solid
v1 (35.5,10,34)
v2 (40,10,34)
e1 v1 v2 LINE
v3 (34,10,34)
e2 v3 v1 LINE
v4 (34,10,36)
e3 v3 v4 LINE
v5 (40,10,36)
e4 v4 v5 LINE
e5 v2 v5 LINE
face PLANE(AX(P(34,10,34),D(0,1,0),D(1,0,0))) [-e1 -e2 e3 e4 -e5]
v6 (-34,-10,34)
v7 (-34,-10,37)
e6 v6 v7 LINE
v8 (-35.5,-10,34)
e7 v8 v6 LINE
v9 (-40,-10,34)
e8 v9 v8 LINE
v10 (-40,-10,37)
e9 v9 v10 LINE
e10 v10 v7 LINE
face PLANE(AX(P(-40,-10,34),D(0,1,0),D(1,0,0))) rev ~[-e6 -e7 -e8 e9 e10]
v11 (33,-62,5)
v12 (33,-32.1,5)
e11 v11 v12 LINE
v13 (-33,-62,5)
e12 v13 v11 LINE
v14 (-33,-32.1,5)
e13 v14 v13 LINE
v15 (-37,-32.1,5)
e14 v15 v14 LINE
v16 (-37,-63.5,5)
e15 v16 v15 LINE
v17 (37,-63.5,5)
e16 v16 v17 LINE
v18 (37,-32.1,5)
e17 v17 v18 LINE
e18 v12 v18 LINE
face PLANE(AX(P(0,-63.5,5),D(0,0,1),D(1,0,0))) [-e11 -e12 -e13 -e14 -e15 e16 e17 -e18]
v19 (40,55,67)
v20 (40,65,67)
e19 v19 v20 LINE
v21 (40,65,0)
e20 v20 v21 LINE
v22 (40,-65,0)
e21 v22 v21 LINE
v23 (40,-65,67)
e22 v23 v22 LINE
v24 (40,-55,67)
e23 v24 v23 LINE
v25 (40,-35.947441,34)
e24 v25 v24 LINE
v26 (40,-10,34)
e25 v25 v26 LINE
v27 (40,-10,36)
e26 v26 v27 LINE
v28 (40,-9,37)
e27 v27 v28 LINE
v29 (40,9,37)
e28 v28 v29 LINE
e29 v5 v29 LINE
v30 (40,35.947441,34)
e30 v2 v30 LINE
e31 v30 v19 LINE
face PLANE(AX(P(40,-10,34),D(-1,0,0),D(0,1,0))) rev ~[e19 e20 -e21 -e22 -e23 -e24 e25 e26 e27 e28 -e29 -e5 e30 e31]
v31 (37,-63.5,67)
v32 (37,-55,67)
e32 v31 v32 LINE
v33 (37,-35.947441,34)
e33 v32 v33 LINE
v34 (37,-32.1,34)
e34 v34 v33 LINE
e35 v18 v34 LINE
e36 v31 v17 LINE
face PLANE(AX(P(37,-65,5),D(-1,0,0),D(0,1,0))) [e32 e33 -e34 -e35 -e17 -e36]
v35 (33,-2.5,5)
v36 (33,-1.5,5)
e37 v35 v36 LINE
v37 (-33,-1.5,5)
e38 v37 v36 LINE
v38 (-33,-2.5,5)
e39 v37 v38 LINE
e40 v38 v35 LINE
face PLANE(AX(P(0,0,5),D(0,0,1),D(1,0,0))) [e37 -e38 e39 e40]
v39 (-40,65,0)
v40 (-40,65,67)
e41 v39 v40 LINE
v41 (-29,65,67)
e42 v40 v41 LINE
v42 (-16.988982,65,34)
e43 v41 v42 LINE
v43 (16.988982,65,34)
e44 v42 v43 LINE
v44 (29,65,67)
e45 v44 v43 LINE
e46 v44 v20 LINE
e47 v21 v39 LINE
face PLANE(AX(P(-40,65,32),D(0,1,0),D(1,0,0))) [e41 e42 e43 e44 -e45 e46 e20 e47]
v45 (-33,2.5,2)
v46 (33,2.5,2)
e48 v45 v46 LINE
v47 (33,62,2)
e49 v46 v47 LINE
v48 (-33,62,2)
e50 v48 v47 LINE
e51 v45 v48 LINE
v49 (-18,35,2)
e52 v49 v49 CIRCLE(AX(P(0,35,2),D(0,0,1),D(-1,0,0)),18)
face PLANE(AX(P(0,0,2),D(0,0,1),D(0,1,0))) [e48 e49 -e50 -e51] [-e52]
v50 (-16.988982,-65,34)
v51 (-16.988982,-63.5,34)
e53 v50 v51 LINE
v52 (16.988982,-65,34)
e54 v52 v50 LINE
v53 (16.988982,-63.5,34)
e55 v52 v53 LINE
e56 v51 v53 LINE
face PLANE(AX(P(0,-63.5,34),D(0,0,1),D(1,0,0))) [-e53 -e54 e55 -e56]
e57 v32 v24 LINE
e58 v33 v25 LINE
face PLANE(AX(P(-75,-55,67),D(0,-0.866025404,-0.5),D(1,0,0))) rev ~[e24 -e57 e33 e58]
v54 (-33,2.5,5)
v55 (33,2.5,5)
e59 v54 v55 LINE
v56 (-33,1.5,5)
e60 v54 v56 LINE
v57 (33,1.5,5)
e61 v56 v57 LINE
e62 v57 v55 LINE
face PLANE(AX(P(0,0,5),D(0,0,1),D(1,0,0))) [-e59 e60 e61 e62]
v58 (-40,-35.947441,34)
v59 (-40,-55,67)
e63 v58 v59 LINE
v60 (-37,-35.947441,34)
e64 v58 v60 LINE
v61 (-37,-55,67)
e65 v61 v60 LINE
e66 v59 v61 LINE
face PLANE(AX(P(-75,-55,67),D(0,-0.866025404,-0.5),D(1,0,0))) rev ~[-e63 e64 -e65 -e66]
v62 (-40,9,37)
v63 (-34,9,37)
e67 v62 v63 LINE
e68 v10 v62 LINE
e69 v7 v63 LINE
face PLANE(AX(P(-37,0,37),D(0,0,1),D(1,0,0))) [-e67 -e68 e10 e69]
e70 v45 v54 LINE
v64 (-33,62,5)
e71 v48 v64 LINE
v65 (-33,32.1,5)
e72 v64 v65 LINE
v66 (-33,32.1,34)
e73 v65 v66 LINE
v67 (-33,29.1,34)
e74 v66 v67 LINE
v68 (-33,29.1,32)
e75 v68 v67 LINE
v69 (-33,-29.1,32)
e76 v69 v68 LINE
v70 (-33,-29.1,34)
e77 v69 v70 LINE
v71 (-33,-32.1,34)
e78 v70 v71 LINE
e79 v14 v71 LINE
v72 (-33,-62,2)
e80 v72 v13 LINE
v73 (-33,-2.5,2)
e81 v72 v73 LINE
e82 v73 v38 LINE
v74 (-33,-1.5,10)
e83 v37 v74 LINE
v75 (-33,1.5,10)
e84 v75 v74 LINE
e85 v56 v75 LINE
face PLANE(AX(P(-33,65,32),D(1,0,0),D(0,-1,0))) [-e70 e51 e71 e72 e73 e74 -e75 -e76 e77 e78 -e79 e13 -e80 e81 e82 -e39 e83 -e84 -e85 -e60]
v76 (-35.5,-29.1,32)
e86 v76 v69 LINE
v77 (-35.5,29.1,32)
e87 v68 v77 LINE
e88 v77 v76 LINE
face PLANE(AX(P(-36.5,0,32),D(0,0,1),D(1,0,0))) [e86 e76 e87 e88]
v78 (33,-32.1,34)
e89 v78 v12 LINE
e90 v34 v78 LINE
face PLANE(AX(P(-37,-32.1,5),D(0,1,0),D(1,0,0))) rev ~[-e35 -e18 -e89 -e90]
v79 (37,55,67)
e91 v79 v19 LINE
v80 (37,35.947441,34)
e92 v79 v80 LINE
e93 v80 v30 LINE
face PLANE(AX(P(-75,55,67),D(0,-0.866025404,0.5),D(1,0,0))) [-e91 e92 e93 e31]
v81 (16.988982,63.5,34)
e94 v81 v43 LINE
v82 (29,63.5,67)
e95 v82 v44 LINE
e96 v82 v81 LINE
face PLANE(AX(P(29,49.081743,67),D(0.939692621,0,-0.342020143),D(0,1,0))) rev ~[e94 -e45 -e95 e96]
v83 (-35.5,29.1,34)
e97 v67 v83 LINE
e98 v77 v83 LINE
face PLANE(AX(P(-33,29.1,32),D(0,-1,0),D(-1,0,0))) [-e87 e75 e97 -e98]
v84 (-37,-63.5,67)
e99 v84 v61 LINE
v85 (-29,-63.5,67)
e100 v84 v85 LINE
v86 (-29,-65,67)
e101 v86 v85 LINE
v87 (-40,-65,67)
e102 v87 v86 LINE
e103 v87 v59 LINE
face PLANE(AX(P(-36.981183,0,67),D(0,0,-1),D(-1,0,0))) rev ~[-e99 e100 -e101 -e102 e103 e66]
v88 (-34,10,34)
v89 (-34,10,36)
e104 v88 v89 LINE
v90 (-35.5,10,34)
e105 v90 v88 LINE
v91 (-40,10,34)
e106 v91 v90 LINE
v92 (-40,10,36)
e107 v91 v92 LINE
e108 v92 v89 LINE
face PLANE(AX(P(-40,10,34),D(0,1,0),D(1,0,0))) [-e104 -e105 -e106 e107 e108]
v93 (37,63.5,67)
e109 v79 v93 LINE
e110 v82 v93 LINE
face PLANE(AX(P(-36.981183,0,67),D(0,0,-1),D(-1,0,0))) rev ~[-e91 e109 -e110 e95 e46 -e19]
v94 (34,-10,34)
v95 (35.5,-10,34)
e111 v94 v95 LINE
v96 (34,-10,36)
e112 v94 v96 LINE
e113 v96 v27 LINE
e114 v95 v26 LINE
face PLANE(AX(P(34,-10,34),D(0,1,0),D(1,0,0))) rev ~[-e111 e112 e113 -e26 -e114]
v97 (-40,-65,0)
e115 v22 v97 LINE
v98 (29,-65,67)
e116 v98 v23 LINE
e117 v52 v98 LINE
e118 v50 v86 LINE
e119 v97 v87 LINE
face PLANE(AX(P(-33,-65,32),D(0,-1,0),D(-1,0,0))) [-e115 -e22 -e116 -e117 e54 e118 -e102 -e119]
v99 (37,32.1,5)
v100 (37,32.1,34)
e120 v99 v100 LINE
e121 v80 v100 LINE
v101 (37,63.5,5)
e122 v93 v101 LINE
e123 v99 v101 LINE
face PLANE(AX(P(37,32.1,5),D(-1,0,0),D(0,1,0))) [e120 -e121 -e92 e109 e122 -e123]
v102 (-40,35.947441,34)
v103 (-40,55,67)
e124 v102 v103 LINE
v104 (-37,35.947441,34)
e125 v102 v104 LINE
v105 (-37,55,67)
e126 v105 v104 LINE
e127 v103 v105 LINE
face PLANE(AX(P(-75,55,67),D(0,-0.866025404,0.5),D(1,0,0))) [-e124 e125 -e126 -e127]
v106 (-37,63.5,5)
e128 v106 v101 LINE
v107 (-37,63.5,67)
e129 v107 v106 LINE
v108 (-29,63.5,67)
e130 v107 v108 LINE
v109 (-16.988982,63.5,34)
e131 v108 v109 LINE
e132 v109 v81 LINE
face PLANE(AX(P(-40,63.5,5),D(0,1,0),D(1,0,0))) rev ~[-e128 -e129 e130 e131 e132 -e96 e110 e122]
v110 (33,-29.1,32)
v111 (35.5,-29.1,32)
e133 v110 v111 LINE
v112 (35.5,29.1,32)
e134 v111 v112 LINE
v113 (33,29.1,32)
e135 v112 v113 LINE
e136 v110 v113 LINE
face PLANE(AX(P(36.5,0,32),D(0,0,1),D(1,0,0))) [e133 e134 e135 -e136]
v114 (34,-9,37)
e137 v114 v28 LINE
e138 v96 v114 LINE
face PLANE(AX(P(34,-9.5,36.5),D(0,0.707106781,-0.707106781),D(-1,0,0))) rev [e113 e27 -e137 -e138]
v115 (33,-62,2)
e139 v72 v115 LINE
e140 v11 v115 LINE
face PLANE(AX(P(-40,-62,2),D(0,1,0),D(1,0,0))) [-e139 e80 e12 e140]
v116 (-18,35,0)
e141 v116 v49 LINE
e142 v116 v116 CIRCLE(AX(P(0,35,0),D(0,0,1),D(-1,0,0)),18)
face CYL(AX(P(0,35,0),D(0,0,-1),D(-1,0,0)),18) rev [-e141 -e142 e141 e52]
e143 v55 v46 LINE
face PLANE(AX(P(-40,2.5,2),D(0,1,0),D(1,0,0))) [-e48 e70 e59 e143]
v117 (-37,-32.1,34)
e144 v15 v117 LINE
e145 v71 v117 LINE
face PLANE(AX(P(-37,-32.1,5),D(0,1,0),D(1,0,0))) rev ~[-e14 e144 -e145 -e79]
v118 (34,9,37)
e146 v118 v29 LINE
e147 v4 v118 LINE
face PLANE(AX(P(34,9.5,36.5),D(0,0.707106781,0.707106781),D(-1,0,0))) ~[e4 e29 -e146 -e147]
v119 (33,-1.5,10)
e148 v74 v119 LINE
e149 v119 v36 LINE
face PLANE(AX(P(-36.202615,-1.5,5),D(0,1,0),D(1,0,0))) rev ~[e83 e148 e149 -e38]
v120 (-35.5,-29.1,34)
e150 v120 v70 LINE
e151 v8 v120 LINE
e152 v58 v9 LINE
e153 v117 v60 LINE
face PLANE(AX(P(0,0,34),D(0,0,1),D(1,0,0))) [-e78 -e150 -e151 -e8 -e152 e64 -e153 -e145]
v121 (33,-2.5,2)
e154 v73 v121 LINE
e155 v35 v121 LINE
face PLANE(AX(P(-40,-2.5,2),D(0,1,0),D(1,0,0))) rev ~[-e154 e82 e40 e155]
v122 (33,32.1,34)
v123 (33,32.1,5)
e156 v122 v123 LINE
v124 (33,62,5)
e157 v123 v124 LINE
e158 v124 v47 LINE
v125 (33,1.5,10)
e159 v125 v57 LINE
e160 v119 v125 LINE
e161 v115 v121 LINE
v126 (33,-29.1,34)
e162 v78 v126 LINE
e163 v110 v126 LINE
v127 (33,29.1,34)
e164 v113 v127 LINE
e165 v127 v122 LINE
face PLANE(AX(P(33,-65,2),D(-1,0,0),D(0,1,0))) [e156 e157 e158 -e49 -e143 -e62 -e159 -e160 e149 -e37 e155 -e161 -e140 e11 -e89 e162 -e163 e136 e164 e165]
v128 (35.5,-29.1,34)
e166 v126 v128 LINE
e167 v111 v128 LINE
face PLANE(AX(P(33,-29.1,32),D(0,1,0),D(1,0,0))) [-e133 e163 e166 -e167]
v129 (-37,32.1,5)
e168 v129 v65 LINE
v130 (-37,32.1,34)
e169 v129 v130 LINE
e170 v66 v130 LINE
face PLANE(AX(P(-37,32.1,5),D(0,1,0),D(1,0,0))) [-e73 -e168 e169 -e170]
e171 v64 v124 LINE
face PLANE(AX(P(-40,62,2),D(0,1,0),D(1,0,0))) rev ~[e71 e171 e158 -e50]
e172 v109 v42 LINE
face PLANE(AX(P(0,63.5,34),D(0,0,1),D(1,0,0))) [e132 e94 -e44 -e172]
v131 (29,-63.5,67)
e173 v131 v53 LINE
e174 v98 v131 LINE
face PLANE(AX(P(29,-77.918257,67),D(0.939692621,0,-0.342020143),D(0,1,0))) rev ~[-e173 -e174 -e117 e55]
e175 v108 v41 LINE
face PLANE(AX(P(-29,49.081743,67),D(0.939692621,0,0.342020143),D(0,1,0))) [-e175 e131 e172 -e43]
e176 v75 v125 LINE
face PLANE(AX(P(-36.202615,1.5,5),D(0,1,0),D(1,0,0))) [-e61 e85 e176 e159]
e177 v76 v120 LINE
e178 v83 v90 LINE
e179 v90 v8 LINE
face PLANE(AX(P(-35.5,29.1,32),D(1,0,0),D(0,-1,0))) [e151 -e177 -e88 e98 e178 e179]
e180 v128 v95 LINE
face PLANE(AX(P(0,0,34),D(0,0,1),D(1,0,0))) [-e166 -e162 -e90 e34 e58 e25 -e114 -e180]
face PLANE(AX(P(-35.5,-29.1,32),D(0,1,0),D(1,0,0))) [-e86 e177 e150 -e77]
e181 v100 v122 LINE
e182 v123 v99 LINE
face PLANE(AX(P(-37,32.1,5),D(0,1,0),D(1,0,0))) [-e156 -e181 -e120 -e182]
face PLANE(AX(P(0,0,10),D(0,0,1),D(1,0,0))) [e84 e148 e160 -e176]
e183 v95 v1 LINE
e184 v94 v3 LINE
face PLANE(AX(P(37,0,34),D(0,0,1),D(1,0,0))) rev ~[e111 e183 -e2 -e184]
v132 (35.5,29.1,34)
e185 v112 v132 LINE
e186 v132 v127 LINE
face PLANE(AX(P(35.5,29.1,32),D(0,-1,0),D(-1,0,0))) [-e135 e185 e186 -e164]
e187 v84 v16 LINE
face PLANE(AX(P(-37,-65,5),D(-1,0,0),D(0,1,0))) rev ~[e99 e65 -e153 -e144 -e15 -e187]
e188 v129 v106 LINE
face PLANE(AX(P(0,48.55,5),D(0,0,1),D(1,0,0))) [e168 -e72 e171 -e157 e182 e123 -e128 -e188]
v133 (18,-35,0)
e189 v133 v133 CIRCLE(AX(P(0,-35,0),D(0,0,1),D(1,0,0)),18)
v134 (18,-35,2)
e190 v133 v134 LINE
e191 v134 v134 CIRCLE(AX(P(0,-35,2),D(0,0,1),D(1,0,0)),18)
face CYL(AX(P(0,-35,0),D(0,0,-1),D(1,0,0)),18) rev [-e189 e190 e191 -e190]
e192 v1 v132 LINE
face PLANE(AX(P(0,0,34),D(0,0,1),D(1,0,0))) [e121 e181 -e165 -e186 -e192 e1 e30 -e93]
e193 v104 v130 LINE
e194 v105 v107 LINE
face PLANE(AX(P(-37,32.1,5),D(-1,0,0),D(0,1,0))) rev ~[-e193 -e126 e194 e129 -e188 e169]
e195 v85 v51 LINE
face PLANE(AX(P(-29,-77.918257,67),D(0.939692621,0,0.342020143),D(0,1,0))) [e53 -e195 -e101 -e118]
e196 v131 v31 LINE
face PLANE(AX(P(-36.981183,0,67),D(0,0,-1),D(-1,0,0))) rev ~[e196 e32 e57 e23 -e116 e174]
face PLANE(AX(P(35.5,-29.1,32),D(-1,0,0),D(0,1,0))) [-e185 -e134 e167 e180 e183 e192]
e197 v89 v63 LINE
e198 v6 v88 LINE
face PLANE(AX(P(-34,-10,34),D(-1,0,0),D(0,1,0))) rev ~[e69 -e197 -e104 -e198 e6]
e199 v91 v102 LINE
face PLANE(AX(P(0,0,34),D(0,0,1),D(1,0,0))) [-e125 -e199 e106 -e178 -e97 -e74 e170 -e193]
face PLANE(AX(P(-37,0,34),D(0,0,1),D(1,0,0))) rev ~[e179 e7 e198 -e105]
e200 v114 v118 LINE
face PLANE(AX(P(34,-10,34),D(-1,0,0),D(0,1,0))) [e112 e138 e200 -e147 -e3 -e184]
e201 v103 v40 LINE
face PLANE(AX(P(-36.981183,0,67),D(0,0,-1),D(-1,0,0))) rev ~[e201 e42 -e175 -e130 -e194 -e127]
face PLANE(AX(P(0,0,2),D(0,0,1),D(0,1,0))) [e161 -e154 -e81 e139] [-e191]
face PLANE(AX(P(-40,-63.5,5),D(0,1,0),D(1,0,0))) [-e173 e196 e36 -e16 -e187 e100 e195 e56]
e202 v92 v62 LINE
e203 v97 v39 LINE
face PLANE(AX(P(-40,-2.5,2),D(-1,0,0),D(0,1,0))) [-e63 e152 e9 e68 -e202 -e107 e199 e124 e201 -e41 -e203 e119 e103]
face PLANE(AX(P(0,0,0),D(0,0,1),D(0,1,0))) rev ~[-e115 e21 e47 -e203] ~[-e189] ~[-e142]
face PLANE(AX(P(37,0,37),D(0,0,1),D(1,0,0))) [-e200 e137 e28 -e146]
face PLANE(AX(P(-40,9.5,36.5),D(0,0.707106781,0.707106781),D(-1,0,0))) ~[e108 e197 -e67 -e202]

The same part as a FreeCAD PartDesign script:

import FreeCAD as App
import Part
import Sketcher
from FreeCAD import Vector


def edges_at(feature, points):
    """Names of the edges that pass closest to the given points."""
    edges = feature.Shape.Edges
    near = lambda p: min(range(len(edges)), key=lambda i: edges[i].distToShape(Part.Vertex(*p))[0])
    return sorted({f"Edge{near(p) + 1}" for p in points})


def faces_at(feature, points):
    """Names of the faces that lie closest to the given points."""
    faces = feature.Shape.Faces
    near = lambda p: min(range(len(faces)), key=lambda i: faces[i].distToShape(Part.Vertex(*p))[0])
    return sorted({f"Face{near(p) + 1}" for p in points})


def add_polygon(sketch, points):
    """Adds a closed chain of lines whose ends are joined by coincident constraints."""
    first, n = sketch.GeometryCount, len(points)
    for a, b in zip(points, points[1:] + points[:1]):
        sketch.addGeometry(Part.LineSegment(App.Vector(*a, 0), App.Vector(*b, 0)), False)
    for i in range(n):
        sketch.addConstraint(Sketcher.Constraint("Coincident", first + i, 2, first + (i + 1) % n, 1))

doc = App.newDocument("Part")
params = doc.addObject("Spreadsheet::Sheet", "Params")
for row, (alias, value) in enumerate([
    ("sketch1_diameter", "36 mm"),
    ("sketch1_width", "80 mm"),
    ("sketch1_height", "130 mm"),
    ("pad1_length", "2 mm"),
    ("sketch2_width", "7 mm"),
    ("sketch2_height", "130 mm"),
    ("pad2_length", "30 mm"),
    ("sketch3_width", "7 mm"),
    ("sketch3_height", "130 mm"),
    ("sketch3_width2", "2.5 mm"),
    ("sketch3_height2", "35.9 mm"),
    ("pad3_length", "35 mm"),
    ("sketch4_width", "150 mm"),
    ("sketch4_height", "110 mm"),
    ("pad4_length", "33 mm"),
    ("draft_angle", "30 deg"),
    ("sketch5_width", "6 mm"),
    ("sketch5_height", "20 mm"),
    ("pad5_length", "3 mm"),
    ("chamfer_size", "1 mm"),
    ("sketch6_width", "80 mm"),
    ("sketch6_height", "5 mm"),
    ("sketch6_height2", "3 mm"),
    ("pad6_length", "3 mm"),
    ("sketch7_width", "74 mm"),
    ("sketch7_height", "32.9 mm"),
    ("sketch8_height", "3 mm"),
    ("pad7_length", "5 mm"),
    ("sketch9_width", "80 mm"),
    ("sketch9_height", "1.5 mm"),
    ("pad8_length", "62 mm"),
    ("sketch10_width", "58 mm"),
    ("pad9_length", "33 mm"),
    ("draft2_angle", "20 deg"),
    ("sketch11_width", "58 mm"),
    ("pad10_length", "33 mm"),
    ("draft3_angle", "20 deg"),
], start=1):
    params.set(f"A{row}", alias)
    params.set(f"B{row}", "=" + value)
    params.setAlias(f"B{row}", alias)

body = doc.addObject("PartDesign::Body", "Body")

# Sketch on XY plane
sketch1 = doc.addObject("Sketcher::SketchObject", "Sketch")
body.addObject(sketch1)
sketch1.AttachmentSupport = (doc.XY_Plane, [""])
sketch1.MapMode = "FlatFace"
add_polygon(sketch1, [(-40, -65), (40, -65), (40, 65), (-40, 65)])  # lines 0-3
sketch1.addGeometry(Part.Circle(Vector(0, -35, 0), Vector(0, 0, 1), 18), False)  # 4
sketch1.addGeometry(Part.Circle(Vector(0, 35, 0), Vector(0, 0, 1), 18), False)  # 5
sketch1.addConstraint(Sketcher.Constraint("Horizontal", 0))
sketch1.addConstraint(Sketcher.Constraint("Vertical", 1))
sketch1.addConstraint(Sketcher.Constraint("Horizontal", 2))
sketch1.addConstraint(Sketcher.Constraint("Vertical", 3))
sketch1.addConstraint(Sketcher.Constraint("Equal", 4, 5))
sketch1.addConstraint(Sketcher.Constraint("Symmetric", 4, 3, 5, 3, -1, 1))
sketch1.addConstraint(Sketcher.Constraint("Symmetric", 0, 2, 2, 2, -1, 1))
sketch1.addConstraint(Sketcher.Constraint("PointOnObject", 4, 3, -2))
sketch1.addConstraint(Sketcher.Constraint("Diameter", 4, 36.0))
sketch1.addConstraint(Sketcher.Constraint("DistanceX", 0, 1, 0, 2, 80.0))
sketch1.addConstraint(Sketcher.Constraint("DistanceY", 1, 1, 1, 2, 130.0))
sketch1.addConstraint(Sketcher.Constraint("DistanceY", 4, 3, -1, 1, 35.0))
sketch1.setExpression("Constraints[12]", "Params.sketch1_diameter")
sketch1.setExpression("Constraints[13]", "Params.sketch1_width")
sketch1.setExpression("Constraints[14]", "Params.sketch1_height")
pad1 = doc.addObject("PartDesign::Pad", "Pad")
body.addObject(pad1)
pad1.Profile = sketch1
pad1.setExpression("Length", "Params.pad1_length")

# Sketch on XY plane
sketch2 = doc.addObject("Sketcher::SketchObject", "Sketch001")
body.addObject(sketch2)
sketch2.AttachmentSupport = (doc.XY_Plane, [""])
sketch2.MapMode = "FlatFace"
sketch2.AttachmentOffset = App.Placement(Vector(0, 0, 2), App.Rotation())
add_polygon(sketch2, [(-40, 65), (-40, -65), (-33, -65), (-33, 65)])  # lines 0-3
add_polygon(sketch2, [(33, 65), (33, -65), (40, -65), (40, 65)])  # lines 4-7
sketch2.addConstraint(Sketcher.Constraint("Vertical", 0))
sketch2.addConstraint(Sketcher.Constraint("Horizontal", 1))
sketch2.addConstraint(Sketcher.Constraint("Vertical", 2))
sketch2.addConstraint(Sketcher.Constraint("Horizontal", 3))
sketch2.addConstraint(Sketcher.Constraint("Vertical", 4))
sketch2.addConstraint(Sketcher.Constraint("Horizontal", 5))
sketch2.addConstraint(Sketcher.Constraint("Vertical", 6))
sketch2.addConstraint(Sketcher.Constraint("Horizontal", 7))
sketch2.addConstraint(Sketcher.Constraint("Symmetric", 2, 2, 4, 2, -1, 1))
sketch2.addConstraint(Sketcher.Constraint("Symmetric", 0, 2, 6, 2, -1, 1))
sketch2.addConstraint(Sketcher.Constraint("Horizontal", 1, 2, 4, 2))
sketch2.addConstraint(Sketcher.Constraint("DistanceX", 1, 1, 1, 2, 7.0))
sketch2.addConstraint(Sketcher.Constraint("DistanceY", 0, 2, 0, 1, 130.0))
sketch2.addConstraint(Sketcher.Constraint("DistanceX", 0, 2, -1, 1, 40.0))
sketch2.setExpression("Constraints[19]", "Params.sketch2_width")
sketch2.setExpression("Constraints[20]", "Params.sketch2_height")
pad2 = doc.addObject("PartDesign::Pad", "Pad001")
body.addObject(pad2)
pad2.Profile = sketch2
pad2.setExpression("Length", "Params.pad2_length")

# Sketch on XY plane
sketch3 = doc.addObject("Sketcher::SketchObject", "Sketch002")
body.addObject(sketch3)
sketch3.AttachmentSupport = (doc.XY_Plane, [""])
sketch3.MapMode = "FlatFace"
sketch3.AttachmentOffset = App.Placement(Vector(0, 0, 32), App.Rotation())
add_polygon(sketch3, [(-35.5, 29.1), (-33, 29.1), (-33, 65), (-40, 65), (-40, -65), (-33, -65), (-33, -29.1), (-35.5, -29.1)])  # lines 0-7
add_polygon(sketch3, [(35.5, 29.1), (35.5, -29.1), (33, -29.1), (33, -65), (40, -65), (40, 65), (33, 65), (33, 29.1)])  # lines 8-15
sketch3.addConstraint(Sketcher.Constraint("Horizontal", 0))
sketch3.addConstraint(Sketcher.Constraint("Vertical", 1))
sketch3.addConstraint(Sketcher.Constraint("Horizontal", 2))
sketch3.addConstraint(Sketcher.Constraint("Vertical", 3))
sketch3.addConstraint(Sketcher.Constraint("Horizontal", 4))
sketch3.addConstraint(Sketcher.Constraint("Vertical", 5))
sketch3.addConstraint(Sketcher.Constraint("Horizontal", 6))
sketch3.addConstraint(Sketcher.Constraint("Vertical", 7))
sketch3.addConstraint(Sketcher.Constraint("Vertical", 8))
sketch3.addConstraint(Sketcher.Constraint("Horizontal", 9))
sketch3.addConstraint(Sketcher.Constraint("Vertical", 10))
sketch3.addConstraint(Sketcher.Constraint("Horizontal", 11))
sketch3.addConstraint(Sketcher.Constraint("Vertical", 12))
sketch3.addConstraint(Sketcher.Constraint("Horizontal", 13))
sketch3.addConstraint(Sketcher.Constraint("Vertical", 14))
sketch3.addConstraint(Sketcher.Constraint("Horizontal", 15))
sketch3.addConstraint(Sketcher.Constraint("Symmetric", 7, 2, 8, 2, -1, 1))
sketch3.addConstraint(Sketcher.Constraint("Symmetric", 1, 2, 10, 2, -1, 1))
sketch3.addConstraint(Sketcher.Constraint("Symmetric", 3, 2, 12, 2, -1, 1))
sketch3.addConstraint(Sketcher.Constraint("Symmetric", 5, 2, 14, 2, -1, 1))
sketch3.addConstraint(Sketcher.Constraint("Symmetric", 5, 2, 9, 2, -2))
sketch3.addConstraint(Sketcher.Constraint("Horizontal", 4, 2, 10, 2))
sketch3.addConstraint(Sketcher.Constraint("DistanceX", 2, 2, 2, 1, 7.0))
sketch3.addConstraint(Sketcher.Constraint("DistanceY", 3, 2, 3, 1, 130.0))
sketch3.addConstraint(Sketcher.Constraint("DistanceX", 0, 1, 0, 2, 2.5))
sketch3.addConstraint(Sketcher.Constraint("DistanceY", 1, 1, 1, 2, 35.9))
sketch3.addConstraint(Sketcher.Constraint("DistanceX", 0, 2, -1, 1, 33.0))
sketch3.setExpression("Constraints[38]", "Params.sketch3_width")
sketch3.setExpression("Constraints[39]", "Params.sketch3_height")
sketch3.setExpression("Constraints[40]", "Params.sketch3_width2")
sketch3.setExpression("Constraints[41]", "Params.sketch3_height2")
pad3 = doc.addObject("PartDesign::Pad", "Pad002")
body.addObject(pad3)
pad3.Profile = sketch3
pad3.setExpression("Length", "Params.pad3_length")
body2 = doc.addObject("PartDesign::Body", "Body001")

# Sketch on XY plane
sketch4 = doc.addObject("Sketcher::SketchObject", "Sketch003")
body2.addObject(sketch4)
sketch4.AttachmentSupport = (doc.getObject("XY_Plane001"), [""])
sketch4.MapMode = "FlatFace"
sketch4.AttachmentOffset = App.Placement(Vector(0, 0, 67), App.Rotation())
add_polygon(sketch4, [(-75, 55), (-75, -55), (75, -55), (75, 55)])  # lines 0-3
sketch4.addConstraint(Sketcher.Constraint("Vertical", 0))
sketch4.addConstraint(Sketcher.Constraint("Horizontal", 1))
sketch4.addConstraint(Sketcher.Constraint("Vertical", 2))
sketch4.addConstraint(Sketcher.Constraint("Horizontal", 3))
sketch4.addConstraint(Sketcher.Constraint("Symmetric", 0, 2, 2, 2, -1, 1))
sketch4.addConstraint(Sketcher.Constraint("DistanceX", 1, 1, 1, 2, 150.0))
sketch4.addConstraint(Sketcher.Constraint("DistanceY", 0, 2, 0, 1, 110.0))
sketch4.setExpression("Constraints[9]", "Params.sketch4_width")
sketch4.setExpression("Constraints[10]", "Params.sketch4_height")
pad4 = doc.addObject("PartDesign::Pad", "Pad003")
body2.addObject(pad4)
pad4.Profile = sketch4
pad4.setExpression("Length", "Params.pad4_length")
pad4.Reversed = True
doc.recompute()

datumplane = doc.addObject("PartDesign::Plane", "DatumPlane")
body2.addObject(datumplane)
datumplane.AttachmentSupport = (doc.getObject("XY_Plane001"), [""])
datumplane.MapMode = "FlatFace"
datumplane.AttachmentOffset = App.Placement(Vector(0, 0, 67), App.Rotation())
draft = doc.addObject("PartDesign::Draft", "Draft")
body2.addObject(draft)
draft.Base = (pad4, faces_at(pad4, [
    (0, -55, 50.5),
    (75, 0, 50.5),
    (0, 55, 50.5),
    (-75, 0, 50.5),
]))
draft.NeutralPlane = (datumplane, [""])
draft.setExpression("Angle", "Params.draft_angle")
draft.Reversed = True
doc.recompute()

boolean = doc.addObject("PartDesign::Boolean", "Boolean")
body.addObject(boolean)
boolean.Type = "Cut"
boolean.addObjects([body2])

# Sketch on XY plane
sketch5 = doc.addObject("Sketcher::SketchObject", "Sketch004")
body.addObject(sketch5)
sketch5.AttachmentSupport = (doc.XY_Plane, [""])
sketch5.MapMode = "FlatFace"
sketch5.AttachmentOffset = App.Placement(Vector(0, 0, 34), App.Rotation())
add_polygon(sketch5, [(34, 10), (34, -10), (40, -10), (40, 10)])  # lines 0-3
add_polygon(sketch5, [(-40, 10), (-40, -10), (-34, -10), (-34, 10)])  # lines 4-7
sketch5.addConstraint(Sketcher.Constraint("Vertical", 0))
sketch5.addConstraint(Sketcher.Constraint("Horizontal", 1))
sketch5.addConstraint(Sketcher.Constraint("Vertical", 2))
sketch5.addConstraint(Sketcher.Constraint("Horizontal", 3))
sketch5.addConstraint(Sketcher.Constraint("Vertical", 4))
sketch5.addConstraint(Sketcher.Constraint("Horizontal", 5))
sketch5.addConstraint(Sketcher.Constraint("Vertical", 6))
sketch5.addConstraint(Sketcher.Constraint("Horizontal", 7))
sketch5.addConstraint(Sketcher.Constraint("Symmetric", 2, 2, 4, 2, -1, 1))
sketch5.addConstraint(Sketcher.Constraint("Symmetric", 0, 2, 6, 2, -1, 1))
sketch5.addConstraint(Sketcher.Constraint("Horizontal", 1, 2, 4, 2))
sketch5.addConstraint(Sketcher.Constraint("DistanceX", 1, 1, 1, 2, 6.0))
sketch5.addConstraint(Sketcher.Constraint("DistanceY", 0, 2, 0, 1, 20.0))
sketch5.addConstraint(Sketcher.Constraint("DistanceX", -1, 1, 0, 2, 34.0))
sketch5.setExpression("Constraints[19]", "Params.sketch5_width")
sketch5.setExpression("Constraints[20]", "Params.sketch5_height")
pad5 = doc.addObject("PartDesign::Pad", "Pad004")
body.addObject(pad5)
pad5.Profile = sketch5
pad5.setExpression("Length", "Params.pad5_length")
doc.recompute()

chamfer = doc.addObject("PartDesign::Chamfer", "Chamfer")
body.addObject(chamfer)
chamfer.Base = (pad5, edges_at(pad5, [(37, 10, 37), (37, -10, 37), (-37, 10, 37)]))
chamfer.setExpression("Size", "Params.chamfer_size")

# Sketch on XY plane
sketch6 = doc.addObject("Sketcher::SketchObject", "Sketch005")
body.addObject(sketch6)
sketch6.AttachmentSupport = (doc.XY_Plane, [""])
sketch6.MapMode = "FlatFace"
sketch6.AttachmentOffset = App.Placement(Vector(0, 0, 2), App.Rotation())
add_polygon(sketch6, [(-40, 2.5), (-40, -2.5), (40, -2.5), (40, 2.5)])  # lines 0-3
add_polygon(sketch6, [(-40, -62), (-40, -65), (40, -65), (40, -62)])  # lines 4-7
add_polygon(sketch6, [(-40, 65), (-40, 62), (40, 62), (40, 65)])  # lines 8-11
sketch6.addConstraint(Sketcher.Constraint("Vertical", 0))
sketch6.addConstraint(Sketcher.Constraint("Horizontal", 1))
sketch6.addConstraint(Sketcher.Constraint("Vertical", 2))
sketch6.addConstraint(Sketcher.Constraint("Horizontal", 3))
sketch6.addConstraint(Sketcher.Constraint("Vertical", 4))
sketch6.addConstraint(Sketcher.Constraint("Horizontal", 5))
sketch6.addConstraint(Sketcher.Constraint("Vertical", 6))
sketch6.addConstraint(Sketcher.Constraint("Horizontal", 7))
sketch6.addConstraint(Sketcher.Constraint("Vertical", 8))
sketch6.addConstraint(Sketcher.Constraint("Horizontal", 9))
sketch6.addConstraint(Sketcher.Constraint("Vertical", 10))
sketch6.addConstraint(Sketcher.Constraint("Horizontal", 11))
sketch6.addConstraint(Sketcher.Constraint("Symmetric", 0, 2, 2, 2, -1, 1))
sketch6.addConstraint(Sketcher.Constraint("Symmetric", 6, 2, 8, 2, -1, 1))
sketch6.addConstraint(Sketcher.Constraint("Symmetric", 4, 2, 10, 2, -1, 1))
sketch6.addConstraint(Sketcher.Constraint("Vertical", 3, 2, 4, 2))
sketch6.addConstraint(Sketcher.Constraint("Vertical", 2, 2, 5, 2))
sketch6.addConstraint(Sketcher.Constraint("DistanceX", 1, 1, 1, 2, 80.0))
sketch6.addConstraint(Sketcher.Constraint("DistanceY", 0, 2, 0, 1, 5.0))
sketch6.addConstraint(Sketcher.Constraint("DistanceY", 4, 2, 4, 1, 3.0))
sketch6.addConstraint(Sketcher.Constraint("DistanceY", 4, 2, -1, 1, 65.0))
sketch6.setExpression("Constraints[29]", "Params.sketch6_width")
sketch6.setExpression("Constraints[30]", "Params.sketch6_height")
sketch6.setExpression("Constraints[31]", "Params.sketch6_height2")
pad6 = doc.addObject("PartDesign::Pad", "Pad005")
body.addObject(pad6)
pad6.Profile = sketch6
pad6.setExpression("Length", "Params.pad6_length")

# Sketch on XY plane
sketch7 = doc.addObject("Sketcher::SketchObject", "Sketch006")
body.addObject(sketch7)
sketch7.AttachmentSupport = (doc.XY_Plane, [""])
sketch7.MapMode = "FlatFace"
sketch7.AttachmentOffset = App.Placement(Vector(0, 0, 5), App.Rotation())
add_polygon(sketch7, [(-37, 65), (-37, 32.1), (37, 32.1), (37, 65)])  # lines 0-3
add_polygon(sketch7, [(-37, -32.1), (-37, -65), (37, -65), (37, -32.1)])  # lines 4-7
sketch7.addConstraint(Sketcher.Constraint("Vertical", 0))
sketch7.addConstraint(Sketcher.Constraint("Horizontal", 1))
sketch7.addConstraint(Sketcher.Constraint("Vertical", 2))
sketch7.addConstraint(Sketcher.Constraint("Horizontal", 3))
sketch7.addConstraint(Sketcher.Constraint("Vertical", 4))
sketch7.addConstraint(Sketcher.Constraint("Horizontal", 5))
sketch7.addConstraint(Sketcher.Constraint("Vertical", 6))
sketch7.addConstraint(Sketcher.Constraint("Horizontal", 7))
sketch7.addConstraint(Sketcher.Constraint("Symmetric", 2, 2, 4, 2, -1, 1))
sketch7.addConstraint(Sketcher.Constraint("Symmetric", 0, 2, 6, 2, -1, 1))
sketch7.addConstraint(Sketcher.Constraint("Vertical", 3, 2, 4, 2))
sketch7.addConstraint(Sketcher.Constraint("DistanceX", 1, 1, 1, 2, 74.0))
sketch7.addConstraint(Sketcher.Constraint("DistanceY", 0, 2, 0, 1, 32.9))
sketch7.addConstraint(Sketcher.Constraint("DistanceY", -1, 1, 2, 2, 65.0))
sketch7.setExpression("Constraints[19]", "Params.sketch7_width")
sketch7.setExpression("Constraints[20]", "Params.sketch7_height")
pocket1 = doc.addObject("PartDesign::Pocket", "Pocket")
body.addObject(pocket1)
pocket1.Profile = sketch7
pocket1.Type = "ThroughAll"
pocket1.Reversed = True

# Sketch on XY plane
sketch8 = doc.addObject("Sketcher::SketchObject", "Sketch007")
body.addObject(sketch8)
sketch8.AttachmentSupport = (doc.XY_Plane, [""])
sketch8.MapMode = "FlatFace"
sketch8.AttachmentOffset = App.Placement(Vector(0, 0, 5), App.Rotation())
add_polygon(sketch8, [(-36.202615, 1.5), (-36.202615, -1.5), (36.202615, -1.5), (36.202615, 1.5)])  # lines 0-3
sketch8.addConstraint(Sketcher.Constraint("Vertical", 0))
sketch8.addConstraint(Sketcher.Constraint("Horizontal", 1))
sketch8.addConstraint(Sketcher.Constraint("Vertical", 2))
sketch8.addConstraint(Sketcher.Constraint("Horizontal", 3))
sketch8.addConstraint(Sketcher.Constraint("Symmetric", 0, 2, 2, 2, -1, 1))
sketch8.addConstraint(Sketcher.Constraint("DistanceY", 0, 2, 0, 1, 3.0))
sketch8.addConstraint(Sketcher.Constraint("DistanceX", 1, 1, 1, 2, 72.405229))
sketch8.setExpression("Constraints[9]", "Params.sketch8_height")
pad7 = doc.addObject("PartDesign::Pad", "Pad006")
body.addObject(pad7)
pad7.Profile = sketch8
pad7.setExpression("Length", "Params.pad7_length")

# Sketch on XY plane
sketch9 = doc.addObject("Sketcher::SketchObject", "Sketch008")
body.addObject(sketch9)
sketch9.AttachmentSupport = (doc.XY_Plane, [""])
sketch9.MapMode = "FlatFace"
sketch9.AttachmentOffset = App.Placement(Vector(0, 0, 5), App.Rotation())
add_polygon(sketch9, [(-40, 65), (-40, 63.5), (40, 63.5), (40, 65)])  # lines 0-3
add_polygon(sketch9, [(-40, -63.5), (-40, -65), (40, -65), (40, -63.5)])  # lines 4-7
sketch9.addConstraint(Sketcher.Constraint("Vertical", 0))
sketch9.addConstraint(Sketcher.Constraint("Horizontal", 1))
sketch9.addConstraint(Sketcher.Constraint("Vertical", 2))
sketch9.addConstraint(Sketcher.Constraint("Horizontal", 3))
sketch9.addConstraint(Sketcher.Constraint("Vertical", 4))
sketch9.addConstraint(Sketcher.Constraint("Horizontal", 5))
sketch9.addConstraint(Sketcher.Constraint("Vertical", 6))
sketch9.addConstraint(Sketcher.Constraint("Horizontal", 7))
sketch9.addConstraint(Sketcher.Constraint("Symmetric", 2, 2, 4, 2, -1, 1))
sketch9.addConstraint(Sketcher.Constraint("Symmetric", 0, 2, 6, 2, -1, 1))
sketch9.addConstraint(Sketcher.Constraint("Vertical", 3, 2, 4, 2))
sketch9.addConstraint(Sketcher.Constraint("DistanceX", 1, 1, 1, 2, 80.0))
sketch9.addConstraint(Sketcher.Constraint("DistanceY", 0, 2, 0, 1, 1.5))
sketch9.addConstraint(Sketcher.Constraint("DistanceY", -1, 1, 2, 2, 65.0))
sketch9.setExpression("Constraints[19]", "Params.sketch9_width")
sketch9.setExpression("Constraints[20]", "Params.sketch9_height")
pad8 = doc.addObject("PartDesign::Pad", "Pad007")
body.addObject(pad8)
pad8.Profile = sketch9
pad8.setExpression("Length", "Params.pad8_length")
body3 = doc.addObject("PartDesign::Body", "Body002")

# Sketch on XY plane
sketch10 = doc.addObject("Sketcher::SketchObject", "Sketch009")
body3.addObject(sketch10)
sketch10.AttachmentSupport = (doc.getObject("XY_Plane002"), [""])
sketch10.MapMode = "FlatFace"
sketch10.AttachmentOffset = App.Placement(Vector(0, 0, 67), App.Rotation())
add_polygon(sketch10, [(-29, 77.918257), (-29, 49.081743), (29, 49.081743), (29, 77.918257)])  # lines 0-3
sketch10.addConstraint(Sketcher.Constraint("Vertical", 0))
sketch10.addConstraint(Sketcher.Constraint("Horizontal", 1))
sketch10.addConstraint(Sketcher.Constraint("Vertical", 2))
sketch10.addConstraint(Sketcher.Constraint("Horizontal", 3))
sketch10.addConstraint(Sketcher.Constraint("DistanceX", 1, 1, 1, 2, 58.0))
sketch10.addConstraint(Sketcher.Constraint("DistanceX", 0, 2, -1, 1, 29.0))
sketch10.addConstraint(Sketcher.Constraint("DistanceY", 0, 2, 0, 1, 28.836513))
sketch10.addConstraint(Sketcher.Constraint("DistanceY", -1, 1, 0, 2, 49.081743))
sketch10.setExpression("Constraints[8]", "Params.sketch10_width")
pad9 = doc.addObject("PartDesign::Pad", "Pad008")
body3.addObject(pad9)
pad9.Profile = sketch10
pad9.setExpression("Length", "Params.pad9_length")
pad9.Reversed = True
doc.recompute()

datumplane2 = doc.addObject("PartDesign::Plane", "DatumPlane001")
body3.addObject(datumplane2)
datumplane2.AttachmentSupport = (doc.getObject("XY_Plane002"), [""])
datumplane2.MapMode = "FlatFace"
datumplane2.AttachmentOffset = App.Placement(Vector(0, 0, 67), App.Rotation())
draft2 = doc.addObject("PartDesign::Draft", "Draft001")
body3.addObject(draft2)
draft2.Base = (pad9, faces_at(pad9, [
    (0, 49.082, 50.5),
    (29, 63.5, 50.5),
    (0, 77.918, 50.5),
    (-29, 63.5, 50.5),
]))
draft2.NeutralPlane = (datumplane2, [""])
draft2.setExpression("Angle", "Params.draft2_angle")
draft2.Reversed = True
doc.recompute()

boolean2 = doc.addObject("PartDesign::Boolean", "Boolean001")
body.addObject(boolean2)
boolean2.Type = "Cut"
boolean2.addObjects([body3])
body4 = doc.addObject("PartDesign::Body", "Body003")

# Sketch on XY plane
sketch11 = doc.addObject("Sketcher::SketchObject", "Sketch010")
body4.addObject(sketch11)
sketch11.AttachmentSupport = (doc.getObject("XY_Plane003"), [""])
sketch11.MapMode = "FlatFace"
sketch11.AttachmentOffset = App.Placement(Vector(0, 0, 67), App.Rotation())
add_polygon(sketch11, [(-29, -49.081743), (-29, -77.918257), (29, -77.918257), (29, -49.081743)])  # lines 0-3
sketch11.addConstraint(Sketcher.Constraint("Vertical", 0))
sketch11.addConstraint(Sketcher.Constraint("Horizontal", 1))
sketch11.addConstraint(Sketcher.Constraint("Vertical", 2))
sketch11.addConstraint(Sketcher.Constraint("Horizontal", 3))
sketch11.addConstraint(Sketcher.Constraint("DistanceX", 1, 1, 1, 2, 58.0))
sketch11.addConstraint(Sketcher.Constraint("DistanceX", 0, 2, -1, 1, 29.0))
sketch11.addConstraint(Sketcher.Constraint("DistanceY", 0, 2, 0, 1, 28.836513))
sketch11.addConstraint(Sketcher.Constraint("DistanceY", 0, 2, -1, 1, 77.918257))
sketch11.setExpression("Constraints[8]", "Params.sketch11_width")
pad10 = doc.addObject("PartDesign::Pad", "Pad009")
body4.addObject(pad10)
pad10.Profile = sketch11
pad10.setExpression("Length", "Params.pad10_length")
pad10.Reversed = True
doc.recompute()

datumplane3 = doc.addObject("PartDesign::Plane", "DatumPlane002")
body4.addObject(datumplane3)
datumplane3.AttachmentSupport = (doc.getObject("XY_Plane003"), [""])
datumplane3.MapMode = "FlatFace"
datumplane3.AttachmentOffset = App.Placement(Vector(0, 0, 67), App.Rotation())
draft3 = doc.addObject("PartDesign::Draft", "Draft002")
body4.addObject(draft3)
draft3.Base = (pad10, faces_at(pad10, [
    (-29, -63.5, 50.5),
    (0, -77.918, 50.5),
    (29, -63.5, 50.5),
    (0, -49.082, 50.5),
]))
draft3.NeutralPlane = (datumplane3, [""])
draft3.setExpression("Angle", "Params.draft3_angle")
draft3.Reversed = True
doc.recompute()

boolean3 = doc.addObject("PartDesign::Boolean", "Boolean002")
body.addObject(boolean3)
boolean3.Type = "Cut"
boolean3.addObjects([body4])

doc.recompute()
